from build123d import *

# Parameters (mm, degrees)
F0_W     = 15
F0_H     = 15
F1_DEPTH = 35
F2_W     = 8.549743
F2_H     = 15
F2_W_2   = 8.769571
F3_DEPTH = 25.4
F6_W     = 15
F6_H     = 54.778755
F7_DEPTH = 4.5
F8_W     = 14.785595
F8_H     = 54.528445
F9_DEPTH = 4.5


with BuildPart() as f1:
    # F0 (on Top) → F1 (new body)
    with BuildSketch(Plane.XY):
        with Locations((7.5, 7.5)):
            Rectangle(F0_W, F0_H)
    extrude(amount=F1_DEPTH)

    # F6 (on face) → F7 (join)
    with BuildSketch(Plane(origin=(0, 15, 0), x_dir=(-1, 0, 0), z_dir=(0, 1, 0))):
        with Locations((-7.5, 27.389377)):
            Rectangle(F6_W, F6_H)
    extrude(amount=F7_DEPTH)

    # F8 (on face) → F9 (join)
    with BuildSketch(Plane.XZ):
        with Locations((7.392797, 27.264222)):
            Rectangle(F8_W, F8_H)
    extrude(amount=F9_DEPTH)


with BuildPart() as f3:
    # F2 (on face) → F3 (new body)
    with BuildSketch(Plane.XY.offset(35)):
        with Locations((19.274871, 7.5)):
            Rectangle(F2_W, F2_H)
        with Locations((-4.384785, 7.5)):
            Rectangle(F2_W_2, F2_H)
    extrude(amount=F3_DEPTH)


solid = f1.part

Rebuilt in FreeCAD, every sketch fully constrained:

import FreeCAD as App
import Part
import Sketcher
Q = App.Units.Quantity


def add_polygon(sketch, points):
    """Adds a closed chain of lines whose ends are joined by coincident constraints."""
    first, n = sketch.GeometryCount, len(points)
    for a, b in zip(points, points[1:] + points[:1]):
        sketch.addGeometry(Part.LineSegment(App.Vector(*a, 0), App.Vector(*b, 0)), False)
    for i in range(n):
        sketch.addConstraint(Sketcher.Constraint("Coincident", first + i, 2, first + (i + 1) % n, 1))

doc = App.newDocument("Part")
body = doc.addObject("PartDesign::Body", "Body")

sketch1 = doc.addObject("Sketcher::SketchObject", "Sketch")
body.addObject(sketch1)
sketch1.AttachmentSupport = (doc.XY_Plane, [""])
sketch1.MapMode = "FlatFace"
add_polygon(sketch1, [(0, 15), (0, 0), (15, 0), (15, 15)])
sketch1.addConstraint([
    Sketcher.Constraint("Vertical", 0),
    Sketcher.Constraint("Horizontal", 1),
    Sketcher.Constraint("Vertical", 2),
    Sketcher.Constraint("Horizontal", 3),
    Sketcher.Constraint("Coincident", 0, 2, -1, 1),
    Sketcher.Constraint("Equal", 3, 0),
    Sketcher.Constraint("DistanceX", 1, 1, 1, 2, Q("15 mm")),
])
pad1 = doc.addObject("PartDesign::Pad", "Pad")
body.addObject(pad1)
pad1.Profile = sketch1
pad1.Length = 35

sketch2 = doc.addObject("Sketcher::SketchObject", "Sketch001")
body.addObject(sketch2)
sketch2.AttachmentSupport = (doc.XZ_Plane, [""])
sketch2.MapMode = "FlatFace"
sketch2.AttachmentOffset = App.Placement(App.Vector(0, 0, -15), App.Rotation())
add_polygon(sketch2, [(15, 55), (15, 0), (0, 0), (0, 55)])
sketch2.addConstraint([
    Sketcher.Constraint("Vertical", 0),
    Sketcher.Constraint("Horizontal", 1),
    Sketcher.Constraint("Vertical", 2),
    Sketcher.Constraint("Horizontal", 3),
    Sketcher.Constraint("Coincident", 1, 2, -1, 1),
    Sketcher.Constraint("DistanceX", 1, 2, 1, 1, Q("15 mm")),
    Sketcher.Constraint("DistanceY", 0, 2, 0, 1, Q("54.778755 mm")),
])
pad2 = doc.addObject("PartDesign::Pad", "Pad001")
body.addObject(pad2)
pad2.Profile = sketch2
pad2.Length = 4.5
pad2.Reversed = True

sketch3 = doc.addObject("Sketcher::SketchObject", "Sketch002")
body.addObject(sketch3)
sketch3.AttachmentSupport = (doc.XZ_Plane, [""])
sketch3.MapMode = "FlatFace"
add_polygon(sketch3, [(0, 55), (0, 0), (15, 0), (15, 55)])
sketch3.addConstraint([
    Sketcher.Constraint("Vertical", 0),
    Sketcher.Constraint("Horizontal", 1),
    Sketcher.Constraint("Vertical", 2),
    Sketcher.Constraint("Horizontal", 3),
    Sketcher.Constraint("Coincident", 0, 2, -1, 1),
    Sketcher.Constraint("DistanceX", 1, 1, 1, 2, Q("14.785595 mm")),
    Sketcher.Constraint("DistanceY", 0, 2, 0, 1, Q("54.528445 mm")),
])
pad3 = doc.addObject("PartDesign::Pad", "Pad002")
body.addObject(pad3)
pad3.Profile = sketch3
pad3.Length = 4.5
body2 = doc.addObject("PartDesign::Body", "Body001")
body2.AllowCompound = True

sketch4 = doc.addObject("Sketcher::SketchObject", "Sketch003")
body2.addObject(sketch4)
sketch4.AttachmentSupport = (doc.getObject("XY_Plane001"), [""])
sketch4.MapMode = "FlatFace"
sketch4.AttachmentOffset = App.Placement(App.Vector(0, 0, 35), App.Rotation())
add_polygon(sketch4, [(15, 15), (15, 0), (24, 0), (24, 15)])
add_polygon(sketch4, [(-9, 15), (-9, 0), (0, 0), (0, 15)])
sketch4.addConstraint([
    Sketcher.Constraint("Vertical", 0),
    Sketcher.Constraint("Horizontal", 1),
    Sketcher.Constraint("Vertical", 2),
    Sketcher.Constraint("Horizontal", 3),
    Sketcher.Constraint("Vertical", 4),
    Sketcher.Constraint("Horizontal", 5),
    Sketcher.Constraint("Vertical", 6),
    Sketcher.Constraint("Horizontal", 7),
    Sketcher.Constraint("Coincident", 5, 2, -1, 1),
    Sketcher.Constraint("PointOnObject", 0, 2, -1),
    Sketcher.Constraint("Horizontal", 3, 2, 6, 2),
    Sketcher.Constraint("DistanceY", 0, 2, 0, 1, Q("15 mm")),
    Sketcher.Constraint("DistanceX", -1, 1, 0, 2, Q("14.999999 mm")),
    Sketcher.Constraint("DistanceX", 5, 1, 5, 2, Q("8.769571 mm")),
    Sketcher.Constraint("DistanceX", 1, 1, 1, 2, Q("8.549743 mm")),
])
pad4 = doc.addObject("PartDesign::Pad", "Pad003")
body2.addObject(pad4)
pad4.Profile = sketch4
pad4.Length = 25.4
body2.Visibility = False

doc.recompute()
